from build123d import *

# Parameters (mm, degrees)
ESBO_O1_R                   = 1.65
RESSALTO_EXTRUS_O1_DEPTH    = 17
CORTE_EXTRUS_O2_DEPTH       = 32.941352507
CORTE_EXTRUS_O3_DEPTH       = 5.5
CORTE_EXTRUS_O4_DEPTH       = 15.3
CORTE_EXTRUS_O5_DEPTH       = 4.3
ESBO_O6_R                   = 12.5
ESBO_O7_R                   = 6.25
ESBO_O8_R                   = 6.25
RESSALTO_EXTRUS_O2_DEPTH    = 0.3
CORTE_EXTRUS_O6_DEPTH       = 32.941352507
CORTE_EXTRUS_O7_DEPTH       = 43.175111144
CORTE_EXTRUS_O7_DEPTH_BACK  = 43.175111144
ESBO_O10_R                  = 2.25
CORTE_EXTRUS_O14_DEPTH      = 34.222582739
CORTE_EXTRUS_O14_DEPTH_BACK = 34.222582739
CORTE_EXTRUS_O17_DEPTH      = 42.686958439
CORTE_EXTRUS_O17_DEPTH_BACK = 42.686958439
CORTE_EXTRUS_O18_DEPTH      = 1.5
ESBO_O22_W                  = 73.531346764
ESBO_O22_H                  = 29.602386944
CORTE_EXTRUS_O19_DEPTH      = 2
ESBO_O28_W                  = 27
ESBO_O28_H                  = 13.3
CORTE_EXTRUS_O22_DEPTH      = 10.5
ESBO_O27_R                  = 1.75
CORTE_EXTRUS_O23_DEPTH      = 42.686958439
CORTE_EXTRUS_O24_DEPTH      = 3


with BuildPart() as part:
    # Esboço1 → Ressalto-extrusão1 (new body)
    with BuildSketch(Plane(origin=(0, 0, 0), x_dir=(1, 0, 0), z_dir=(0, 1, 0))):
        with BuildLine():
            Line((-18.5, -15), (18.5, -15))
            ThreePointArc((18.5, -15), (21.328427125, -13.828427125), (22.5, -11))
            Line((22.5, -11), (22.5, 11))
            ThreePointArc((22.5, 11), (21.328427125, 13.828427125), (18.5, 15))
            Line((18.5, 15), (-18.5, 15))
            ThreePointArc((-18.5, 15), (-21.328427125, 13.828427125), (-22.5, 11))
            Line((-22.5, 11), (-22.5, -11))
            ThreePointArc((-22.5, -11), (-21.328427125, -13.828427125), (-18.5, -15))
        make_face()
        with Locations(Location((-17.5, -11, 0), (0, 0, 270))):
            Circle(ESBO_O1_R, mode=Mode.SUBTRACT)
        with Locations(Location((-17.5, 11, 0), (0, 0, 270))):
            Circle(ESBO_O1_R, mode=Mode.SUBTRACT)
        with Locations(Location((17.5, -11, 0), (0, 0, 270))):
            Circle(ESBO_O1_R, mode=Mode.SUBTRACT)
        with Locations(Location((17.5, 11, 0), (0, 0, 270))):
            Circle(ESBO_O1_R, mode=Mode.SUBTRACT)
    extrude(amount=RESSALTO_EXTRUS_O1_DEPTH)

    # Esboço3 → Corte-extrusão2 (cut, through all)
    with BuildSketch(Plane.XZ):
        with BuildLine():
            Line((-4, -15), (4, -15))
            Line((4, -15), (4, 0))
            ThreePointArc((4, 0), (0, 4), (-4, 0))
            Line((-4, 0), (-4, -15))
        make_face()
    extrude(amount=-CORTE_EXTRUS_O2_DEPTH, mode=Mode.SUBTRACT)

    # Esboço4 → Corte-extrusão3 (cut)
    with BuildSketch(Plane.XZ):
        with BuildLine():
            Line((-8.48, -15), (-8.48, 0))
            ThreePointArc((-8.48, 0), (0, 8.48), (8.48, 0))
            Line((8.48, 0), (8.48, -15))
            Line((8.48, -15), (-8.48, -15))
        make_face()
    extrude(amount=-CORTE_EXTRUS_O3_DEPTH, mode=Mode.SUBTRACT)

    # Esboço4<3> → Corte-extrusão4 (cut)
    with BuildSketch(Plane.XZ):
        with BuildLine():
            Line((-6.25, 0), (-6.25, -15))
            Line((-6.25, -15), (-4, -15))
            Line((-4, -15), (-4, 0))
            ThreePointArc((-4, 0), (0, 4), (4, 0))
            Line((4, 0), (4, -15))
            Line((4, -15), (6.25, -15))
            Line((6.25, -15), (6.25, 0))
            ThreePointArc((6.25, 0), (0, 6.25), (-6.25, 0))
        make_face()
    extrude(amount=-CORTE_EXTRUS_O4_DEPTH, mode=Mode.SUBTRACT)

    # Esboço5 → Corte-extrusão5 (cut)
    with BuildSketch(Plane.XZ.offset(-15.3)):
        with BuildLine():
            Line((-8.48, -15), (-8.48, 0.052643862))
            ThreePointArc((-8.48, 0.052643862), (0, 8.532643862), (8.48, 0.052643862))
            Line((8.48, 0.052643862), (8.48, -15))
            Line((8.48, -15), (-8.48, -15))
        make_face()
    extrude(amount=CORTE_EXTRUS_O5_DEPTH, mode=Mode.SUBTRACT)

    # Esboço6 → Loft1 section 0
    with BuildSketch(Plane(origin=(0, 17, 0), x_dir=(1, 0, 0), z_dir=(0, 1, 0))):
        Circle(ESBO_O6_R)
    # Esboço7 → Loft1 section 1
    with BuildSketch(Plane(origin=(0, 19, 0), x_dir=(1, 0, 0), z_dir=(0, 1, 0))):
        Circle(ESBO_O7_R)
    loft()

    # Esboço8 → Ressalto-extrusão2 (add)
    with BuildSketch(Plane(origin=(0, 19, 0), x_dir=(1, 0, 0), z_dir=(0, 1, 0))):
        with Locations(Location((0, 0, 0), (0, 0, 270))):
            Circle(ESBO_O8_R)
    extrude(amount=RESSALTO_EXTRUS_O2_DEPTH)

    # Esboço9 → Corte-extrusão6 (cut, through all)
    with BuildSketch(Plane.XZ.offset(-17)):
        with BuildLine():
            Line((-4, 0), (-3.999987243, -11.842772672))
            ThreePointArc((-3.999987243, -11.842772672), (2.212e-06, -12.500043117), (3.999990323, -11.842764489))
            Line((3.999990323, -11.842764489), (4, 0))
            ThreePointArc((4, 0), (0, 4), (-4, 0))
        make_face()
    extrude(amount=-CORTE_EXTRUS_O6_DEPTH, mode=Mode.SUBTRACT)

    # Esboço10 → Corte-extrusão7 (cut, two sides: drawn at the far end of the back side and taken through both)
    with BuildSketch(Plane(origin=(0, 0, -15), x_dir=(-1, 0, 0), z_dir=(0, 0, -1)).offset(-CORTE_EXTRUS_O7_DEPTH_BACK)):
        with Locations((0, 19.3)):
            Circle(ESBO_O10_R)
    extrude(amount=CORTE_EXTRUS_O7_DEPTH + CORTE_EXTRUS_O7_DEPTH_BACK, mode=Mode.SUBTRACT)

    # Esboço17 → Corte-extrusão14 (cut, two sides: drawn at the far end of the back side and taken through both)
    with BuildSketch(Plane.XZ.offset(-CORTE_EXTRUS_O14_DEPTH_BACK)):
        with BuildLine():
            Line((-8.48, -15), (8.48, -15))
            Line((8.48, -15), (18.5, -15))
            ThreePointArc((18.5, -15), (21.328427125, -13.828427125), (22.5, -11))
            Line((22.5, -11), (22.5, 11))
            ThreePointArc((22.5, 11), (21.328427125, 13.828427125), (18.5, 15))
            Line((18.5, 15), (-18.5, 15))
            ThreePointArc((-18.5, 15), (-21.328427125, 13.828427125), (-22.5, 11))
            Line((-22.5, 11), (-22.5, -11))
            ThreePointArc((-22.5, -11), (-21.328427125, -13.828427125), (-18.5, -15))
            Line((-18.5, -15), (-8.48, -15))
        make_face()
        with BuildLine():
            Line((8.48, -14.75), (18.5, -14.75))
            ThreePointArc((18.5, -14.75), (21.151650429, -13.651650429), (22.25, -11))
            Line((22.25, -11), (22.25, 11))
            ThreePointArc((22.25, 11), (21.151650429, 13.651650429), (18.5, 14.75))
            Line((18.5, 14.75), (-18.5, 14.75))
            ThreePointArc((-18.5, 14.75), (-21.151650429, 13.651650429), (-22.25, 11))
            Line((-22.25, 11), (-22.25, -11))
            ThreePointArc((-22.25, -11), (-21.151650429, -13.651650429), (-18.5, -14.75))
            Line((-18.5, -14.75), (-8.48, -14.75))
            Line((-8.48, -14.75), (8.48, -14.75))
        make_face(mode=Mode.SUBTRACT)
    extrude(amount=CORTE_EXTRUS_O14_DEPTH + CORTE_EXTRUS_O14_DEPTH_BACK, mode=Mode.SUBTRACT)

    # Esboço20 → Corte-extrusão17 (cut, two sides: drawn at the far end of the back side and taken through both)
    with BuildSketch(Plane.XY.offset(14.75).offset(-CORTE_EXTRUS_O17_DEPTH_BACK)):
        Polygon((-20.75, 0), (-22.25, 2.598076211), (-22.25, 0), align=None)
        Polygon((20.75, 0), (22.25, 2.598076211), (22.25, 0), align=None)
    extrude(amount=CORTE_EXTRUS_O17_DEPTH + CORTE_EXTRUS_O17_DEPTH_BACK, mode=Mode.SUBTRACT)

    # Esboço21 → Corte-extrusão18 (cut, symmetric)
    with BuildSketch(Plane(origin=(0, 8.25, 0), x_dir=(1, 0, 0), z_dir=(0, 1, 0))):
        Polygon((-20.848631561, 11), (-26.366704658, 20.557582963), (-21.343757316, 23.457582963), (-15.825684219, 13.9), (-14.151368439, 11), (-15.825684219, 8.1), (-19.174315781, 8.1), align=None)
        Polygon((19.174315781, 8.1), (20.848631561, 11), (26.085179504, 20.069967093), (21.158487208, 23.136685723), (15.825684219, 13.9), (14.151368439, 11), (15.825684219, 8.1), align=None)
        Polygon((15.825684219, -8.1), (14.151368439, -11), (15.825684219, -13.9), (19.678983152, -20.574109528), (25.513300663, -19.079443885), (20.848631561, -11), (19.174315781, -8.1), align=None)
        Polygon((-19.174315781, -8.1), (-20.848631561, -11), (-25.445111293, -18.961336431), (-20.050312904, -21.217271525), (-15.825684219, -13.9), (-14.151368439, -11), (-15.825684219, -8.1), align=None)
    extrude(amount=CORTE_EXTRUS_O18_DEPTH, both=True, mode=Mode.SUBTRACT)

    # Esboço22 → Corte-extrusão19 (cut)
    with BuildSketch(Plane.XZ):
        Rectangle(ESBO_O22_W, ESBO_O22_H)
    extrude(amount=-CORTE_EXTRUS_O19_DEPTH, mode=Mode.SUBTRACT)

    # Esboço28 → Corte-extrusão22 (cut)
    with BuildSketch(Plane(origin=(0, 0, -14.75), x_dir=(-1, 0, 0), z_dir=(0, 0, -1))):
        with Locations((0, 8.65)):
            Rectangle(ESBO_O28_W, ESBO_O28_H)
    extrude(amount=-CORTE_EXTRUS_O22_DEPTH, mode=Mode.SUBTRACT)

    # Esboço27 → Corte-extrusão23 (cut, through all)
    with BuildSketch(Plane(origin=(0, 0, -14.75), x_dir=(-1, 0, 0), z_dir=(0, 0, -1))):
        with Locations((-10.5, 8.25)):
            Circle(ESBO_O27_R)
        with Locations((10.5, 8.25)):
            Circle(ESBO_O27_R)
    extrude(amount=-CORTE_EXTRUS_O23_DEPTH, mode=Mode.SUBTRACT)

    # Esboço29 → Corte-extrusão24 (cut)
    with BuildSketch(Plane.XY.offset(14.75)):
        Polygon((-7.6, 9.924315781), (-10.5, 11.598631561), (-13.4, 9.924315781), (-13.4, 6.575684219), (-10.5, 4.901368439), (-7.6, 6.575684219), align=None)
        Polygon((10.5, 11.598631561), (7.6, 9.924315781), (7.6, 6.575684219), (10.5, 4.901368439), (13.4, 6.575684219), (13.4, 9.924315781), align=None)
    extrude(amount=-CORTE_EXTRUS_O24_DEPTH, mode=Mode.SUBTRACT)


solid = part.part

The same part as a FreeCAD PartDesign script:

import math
import FreeCAD as App
import Part
import Sketcher

V = App.Vector
Q = App.Units.Quantity

doc = App.newDocument("Part")
params = doc.addObject("Spreadsheet::Sheet", "Params")
for row, (alias, value) in enumerate([
    ("sketch1_radius", "4 mm"),
    ("sketch1_diameter", "3.3 mm"),
    ("sketch1_width", "37 mm"),
    ("sketch1_height", "22 mm"),
    ("pad1_length", "17 mm"),
    ("sketch2_radius", "4 mm"),
    ("sketch2_height", "15 mm"),
    ("sketch3_height", "15 mm"),
    ("sketch3_radius", "8.48 mm"),
    ("pocket2_length", "5.5 mm"),
    ("sketch4_radius", "4 mm"),
    ("sketch4_height", "15 mm"),
    ("sketch4_radius2", "6.25 mm"),
    ("pocket3_length", "15.3 mm"),
    ("sketch5_radius", "8.48 mm"),
    ("pocket4_length", "4.3 mm"),
    ("sketch6_diameter", "25 mm"),
    ("sketch7_diameter", "12.5 mm"),
    ("sketch8_diameter", "12.5 mm"),
    ("pad2_length", "0.3 mm"),
    ("sketch9_radius", "4 mm"),
    ("sketch10_diameter", "4.5 mm"),
    ("sketch11_radius", "4 mm"),
    ("sketch11_width", "37 mm"),
    ("sketch11_height", "22 mm"),
    ("sketch11_radius2", "3.75 mm"),
    ("sketch12_length", "3 mm"),
    ("sketch13_length", "5.8 mm"),
    ("pocket9_length", "3 mm"),
    ("pocket10_length", "2 mm"),
    ("sketch15_width", "27 mm"),
    ("sketch15_height", "13.3 mm"),
    ("pocket11_length", "10.5 mm"),
    ("sketch16_diameter", "3.5 mm"),
    ("pocket13_length", "3 mm"),
], start=1):
    params.set(f"A{row}", alias)
    params.set(f"B{row}", "=" + value)
    params.setAlias(f"B{row}", alias)

body = doc.addObject("PartDesign::Body", "Body")

# Sketch on XZ plane
sketch1 = body.newObject("Sketcher::SketchObject", "Sketch")
sketch1.AttachmentSupport = (doc.getObject("XZ_Plane"), [""])
sketch1.MapMode = "FlatFace"
sketch1.addGeometry([
    Part.LineSegment(V(-18.5, 15, 0), V(18.5, 15, 0)),  # 0
    Part.ArcOfCircle(Part.Circle(V(18.5, 11, 0), V(0, 0, 1), 4), math.radians(0), math.radians(90)),  # 1
    Part.LineSegment(V(22.5, 11, 0), V(22.5, -11, 0)),  # 2
    Part.ArcOfCircle(Part.Circle(V(18.5, -11, 0), V(0, 0, 1), 4), math.radians(-90), math.radians(0)),  # 3
    Part.LineSegment(V(18.5, -15, 0), V(-18.5, -15, 0)),  # 4
    Part.ArcOfCircle(Part.Circle(V(-18.5, -11, 0), V(0, 0, 1), 4), math.radians(180), math.radians(270)),  # 5
    Part.LineSegment(V(-22.5, -11, 0), V(-22.5, 11, 0)),  # 6
    Part.ArcOfCircle(Part.Circle(V(-18.5, 11, 0), V(0, 0, 1), 4), math.radians(90), math.radians(180)),  # 7
    Part.Circle(V(-17.5, 11, 0), V(0, 0, 1), 1.6),  # 8
    Part.Circle(V(17.5, 11, 0), V(0, 0, 1), 1.6),  # 9
    Part.Circle(V(-17.5, -11, 0), V(0, 0, 1), 1.6),  # 10
    Part.Circle(V(17.5, -11, 0), V(0, 0, 1), 1.6),  # 11
], False)
sketch1.addConstraint([
    Sketcher.Constraint("Tangent", 0, 2, 1, 2),
    Sketcher.Constraint("Tangent", 1, 1, 2, 1),
    Sketcher.Constraint("Tangent", 2, 2, 3, 2),
    Sketcher.Constraint("Tangent", 3, 1, 4, 1),
    Sketcher.Constraint("Tangent", 4, 2, 5, 2),
    Sketcher.Constraint("Tangent", 5, 1, 6, 1),
    Sketcher.Constraint("Tangent", 6, 2, 7, 2),
    Sketcher.Constraint("Tangent", 7, 1, 0, 1),
    Sketcher.Constraint("Horizontal", 0),
    Sketcher.Constraint("Vertical", 2),
    Sketcher.Constraint("Horizontal", 4),
    Sketcher.Constraint("Vertical", 6),
    Sketcher.Constraint("Equal", 1, 3),
    Sketcher.Constraint("Equal", 3, 5),
    Sketcher.Constraint("Equal", 5, 7),
    Sketcher.Constraint("Equal", 8, 9),
    Sketcher.Constraint("Equal", 9, 10),
    Sketcher.Constraint("Equal", 10, 11),
    Sketcher.Constraint("Symmetric", 1, 3, 5, 3, -1, 1),
    Sketcher.Constraint("Symmetric", 9, 3, 10, 3, -1, 1),
    Sketcher.Constraint("Symmetric", 8, 3, 11, 3, -1, 1),
    Sketcher.Constraint("Symmetric", 8, 3, 9, 3, -2),
    Sketcher.Constraint("Horizontal", 7, 3, 8, 3),
    Sketcher.Constraint("Radius", 1, 4.0),
    Sketcher.Constraint("Diameter", 8, 3.3),
    Sketcher.Constraint("DistanceX", 0, 1, 0, 2, 37.0),
    Sketcher.Constraint("DistanceY", 2, 2, 2, 1, 22.0),
    Sketcher.Constraint("DistanceX", 7, 3, 8, 3, 1.0),
])
sketch1.setExpression("Constraints[23]", "Params.sketch1_radius")
sketch1.setExpression("Constraints[24]", "Params.sketch1_diameter")
sketch1.setExpression("Constraints[25]", "Params.sketch1_width")
sketch1.setExpression("Constraints[26]", "Params.sketch1_height")
pad1 = body.newObject("PartDesign::Pad", "Pad")
pad1.Profile = sketch1
pad1.setExpression("Length", "Params.pad1_length")
pad1.Reversed = True

# Sketch on XZ plane
sketch2 = body.newObject("Sketcher::SketchObject", "Sketch001")
sketch2.AttachmentSupport = (doc.getObject("XZ_Plane"), [""])
sketch2.MapMode = "FlatFace"
sketch2.addGeometry([
    Part.LineSegment(V(-4, -15, 0), V(4, -15, 0)),
    Part.LineSegment(V(4, -15, 0), V(4, 0, 0)),
    Part.ArcOfCircle(Part.Circle(V(0, 0, 0), V(0, 0, 1), 4), math.radians(0), math.radians(180)),
    Part.LineSegment(V(-4, 0, 0), V(-4, -15, 0)),
], False)
sketch2.addConstraint([
    Sketcher.Constraint("Coincident", 0, 2, 1, 1),
    Sketcher.Constraint("Tangent", 1, 2, 2, 1),
    Sketcher.Constraint("Tangent", 2, 2, 3, 1),
    Sketcher.Constraint("Coincident", 3, 2, 0, 1),
    Sketcher.Constraint("Horizontal", 0),
    Sketcher.Constraint("Vertical", 1),
    Sketcher.Constraint("Vertical", 3),
    Sketcher.Constraint("Coincident", 2, 3, -1, 1),
    Sketcher.Constraint("Radius", 2, 4.0),
    Sketcher.Constraint("DistanceY", 1, 1, 1, 2, 15.0),
])
sketch2.setExpression("Constraints[8]", "Params.sketch2_radius")
sketch2.setExpression("Constraints[9]", "Params.sketch2_height")
pocket1 = body.newObject("PartDesign::Pocket", "Pocket")
pocket1.Profile = sketch2
pocket1.Type = "ThroughAll"

# Sketch on XZ plane
sketch3 = body.newObject("Sketcher::SketchObject", "Sketch002")
sketch3.AttachmentSupport = (doc.getObject("XZ_Plane"), [""])
sketch3.MapMode = "FlatFace"
sketch3.addGeometry([
    Part.LineSegment(V(-8, 0, 0), V(-8, -15, 0)),
    Part.LineSegment(V(-8, -15, 0), V(8, -15, 0)),
    Part.LineSegment(V(8, -15, 0), V(8, 0, 0)),
    Part.ArcOfCircle(Part.Circle(V(0, 0, 0), V(0, 0, 1), 8), math.radians(0), math.radians(180)),
], False)
sketch3.addConstraint([
    Sketcher.Constraint("Coincident", 0, 2, 1, 1),
    Sketcher.Constraint("Coincident", 1, 2, 2, 1),
    Sketcher.Constraint("Tangent", 2, 2, 3, 1),
    Sketcher.Constraint("Tangent", 3, 2, 0, 1),
    Sketcher.Constraint("Vertical", 0),
    Sketcher.Constraint("Horizontal", 1),
    Sketcher.Constraint("Vertical", 2),
    Sketcher.Constraint("Coincident", 3, 3, -1, 1),
    Sketcher.Constraint("DistanceY", 0, 2, 0, 1, 15.0),
    Sketcher.Constraint("Radius", 3, 8.48),
])
sketch3.setExpression("Constraints[8]", "Params.sketch3_height")
sketch3.setExpression("Constraints[9]", "Params.sketch3_radius")
pocket2 = body.newObject("PartDesign::Pocket", "Pocket001")
pocket2.Profile = sketch3
pocket2.setExpression("Length", "Params.pocket2_length")

# Sketch on XZ plane
sketch4 = body.newObject("Sketcher::SketchObject", "Sketch003")
sketch4.AttachmentSupport = (doc.getObject("XZ_Plane"), [""])
sketch4.MapMode = "FlatFace"
sketch4.addGeometry([
    Part.LineSegment(V(-6.2, 0, 0), V(-6.2, -15, 0)),  # 0
    Part.LineSegment(V(-6.2, -15, 0), V(-4, -15, 0)),  # 1
    Part.LineSegment(V(-4, -15, 0), V(-4, 0, 0)),  # 2
    Part.ArcOfCircle(Part.Circle(V(0, 0, 0), V(0, 0, 1), 4), math.radians(0), math.radians(180)),  # 3
    Part.LineSegment(V(4, 0, 0), V(4, -15, 0)),  # 4
    Part.LineSegment(V(4, -15, 0), V(6.2, -15, 0)),  # 5
    Part.LineSegment(V(6.2, -15, 0), V(6.2, 0, 0)),  # 6
    Part.ArcOfCircle(Part.Circle(V(0, 0, 0), V(0, 0, 1), 6.2), math.radians(0), math.radians(180)),  # 7
], False)
sketch4.addConstraint([
    Sketcher.Constraint("Coincident", 0, 2, 1, 1),
    Sketcher.Constraint("Coincident", 1, 2, 2, 1),
    Sketcher.Constraint("Tangent", 2, 2, 3, 2),
    Sketcher.Constraint("Tangent", 3, 1, 4, 1),
    Sketcher.Constraint("Coincident", 4, 2, 5, 1),
    Sketcher.Constraint("Coincident", 5, 2, 6, 1),
    Sketcher.Constraint("Tangent", 6, 2, 7, 1),
    Sketcher.Constraint("Tangent", 7, 2, 0, 1),
    Sketcher.Constraint("Vertical", 0),
    Sketcher.Constraint("Horizontal", 1),
    Sketcher.Constraint("Vertical", 2),
    Sketcher.Constraint("Vertical", 4),
    Sketcher.Constraint("Horizontal", 5),
    Sketcher.Constraint("Vertical", 6),
    Sketcher.Constraint("Coincident", 3, 3, -1, 1),
    Sketcher.Constraint("Coincident", 7, 3, -1, 1),
    Sketcher.Constraint("Horizontal", 1, 2, 4, 2),
    Sketcher.Constraint("Radius", 3, 4.0),
    Sketcher.Constraint("DistanceY", 0, 2, 0, 1, 15.0),
    Sketcher.Constraint("Radius", 7, 6.25),
])
sketch4.setExpression("Constraints[17]", "Params.sketch4_radius")
sketch4.setExpression("Constraints[18]", "Params.sketch4_height")
sketch4.setExpression("Constraints[19]", "Params.sketch4_radius2")
pocket3 = body.newObject("PartDesign::Pocket", "Pocket002")
pocket3.Profile = sketch4
pocket3.setExpression("Length", "Params.pocket3_length")

# Sketch on XZ plane
sketch5 = body.newObject("Sketcher::SketchObject", "Sketch004")
sketch5.AttachmentSupport = (doc.getObject("XZ_Plane"), [""])
sketch5.MapMode = "FlatFace"
sketch5.AttachmentOffset = App.Placement(V(0, 0, -15.3), App.Rotation())
sketch5.addGeometry([
    Part.LineSegment(V(-8, 0, 0), V(-8, -15, 0)),
    Part.LineSegment(V(-8, -15, 0), V(8, -15, 0)),
    Part.LineSegment(V(8, -15, 0), V(8, 0, 0)),
    Part.ArcOfCircle(Part.Circle(V(0, 0, 0), V(0, 0, 1), 8), math.radians(0), math.radians(180)),
], False)
sketch5.addConstraint([
    Sketcher.Constraint("Coincident", 0, 2, 1, 1),
    Sketcher.Constraint("Coincident", 1, 2, 2, 1),
    Sketcher.Constraint("Tangent", 2, 2, 3, 1),
    Sketcher.Constraint("Tangent", 3, 2, 0, 1),
    Sketcher.Constraint("Vertical", 0),
    Sketcher.Constraint("Horizontal", 1),
    Sketcher.Constraint("Vertical", 2),
    Sketcher.Constraint("PointOnObject", 3, 3, -2),
    Sketcher.Constraint("Radius", 3, 8.48),
    Sketcher.Constraint("DistanceY", 0, 2, -1, 1, 15.0),
    Sketcher.Constraint("DistanceY", 0, 2, 0, 1, 15.052644),
])
sketch5.setExpression("Constraints[8]", "Params.sketch5_radius")
pocket4 = body.newObject("PartDesign::Pocket", "Pocket003")
pocket4.Profile = sketch5
pocket4.setExpression("Length", "Params.pocket4_length")
pocket4.Reversed = True

# Sketch on XZ plane
sketch6 = body.newObject("Sketcher::SketchObject", "Sketch005")
sketch6.AttachmentSupport = (doc.getObject("XZ_Plane"), [""])
sketch6.MapMode = "FlatFace"
sketch6.AttachmentOffset = App.Placement(V(0, 0, -17), App.Rotation())
sketch6.addGeometry(Part.Circle(V(0, 0, 0), V(0, 0, 1), 12), False)
sketch6.addConstraint([
    Sketcher.Constraint("Coincident", 0, 3, -1, 1),
    Sketcher.Constraint("Diameter", 0, 25.0),
])
sketch6.setExpression("Constraints[1]", "Params.sketch6_diameter")

# Sketch on XZ plane
sketch7 = body.newObject("Sketcher::SketchObject", "Sketch006")
sketch7.AttachmentSupport = (doc.getObject("XZ_Plane"), [""])
sketch7.MapMode = "FlatFace"
sketch7.AttachmentOffset = App.Placement(V(0, 0, -19), App.Rotation())
sketch7.addGeometry(Part.Circle(V(0, 0, 0), V(0, 0, 1), 6), False)
sketch7.addConstraint([
    Sketcher.Constraint("Coincident", 0, 3, -1, 1),
    Sketcher.Constraint("Diameter", 0, 12.5),
])
sketch7.setExpression("Constraints[1]", "Params.sketch7_diameter")

additiveloft = body.newObject("PartDesign::AdditiveLoft", "AdditiveLoft")
additiveloft.Profile = sketch6
additiveloft.Sections = [sketch7]

# Sketch on XZ plane
sketch8 = body.newObject("Sketcher::SketchObject", "Sketch007")
sketch8.AttachmentSupport = (doc.getObject("XZ_Plane"), [""])
sketch8.MapMode = "FlatFace"
sketch8.AttachmentOffset = App.Placement(V(0, 0, -19), App.Rotation())
sketch8.addGeometry(Part.Circle(V(0, 0, 0), V(0, 0, 1), 6), False)
sketch8.addConstraint([
    Sketcher.Constraint("Coincident", 0, 3, -1, 1),
    Sketcher.Constraint("Diameter", 0, 12.5),
])
sketch8.setExpression("Constraints[1]", "Params.sketch8_diameter")
pad2 = body.newObject("PartDesign::Pad", "Pad001")
pad2.Profile = sketch8
pad2.setExpression("Length", "Params.pad2_length")
pad2.Reversed = True

# Sketch on XZ plane
sketch9 = body.newObject("Sketcher::SketchObject", "Sketch008")
sketch9.AttachmentSupport = (doc.getObject("XZ_Plane"), [""])
sketch9.MapMode = "FlatFace"
sketch9.AttachmentOffset = App.Placement(V(0, 0, -17), App.Rotation())
sketch9.addGeometry([
    Part.LineSegment(V(-4, 0, 0), V(-4, -11.8, 0)),
    Part.ArcOfCircle(Part.Circle(V(0, 0, 0), V(0, 0, 1), 12.5), math.radians(-109), math.radians(-71)),
    Part.LineSegment(V(4, -11.8, 0), V(4, 0, 0)),
    Part.ArcOfCircle(Part.Circle(V(0, 0, 0), V(0, 0, 1), 4), math.radians(0), math.radians(180)),
], False)
sketch9.addConstraint([
    Sketcher.Constraint("Coincident", 0, 2, 1, 1),
    Sketcher.Constraint("Coincident", 1, 2, 2, 1),
    Sketcher.Constraint("Tangent", 2, 2, 3, 1),
    Sketcher.Constraint("Tangent", 3, 2, 0, 1),
    Sketcher.Constraint("Coincident", 3, 3, -1, 1),
    Sketcher.Constraint("Symmetric", 0, 2, 1, 2, -2),
    Sketcher.Constraint("PointOnObject", 1, 3, -1),
    Sketcher.Constraint("PointOnObject", 2, 2, -1),
    Sketcher.Constraint("Radius", 3, 4.0),
    Sketcher.Constraint("Radius", 1, 12.500043),
])
sketch9.setExpression("Constraints[8]", "Params.sketch9_radius")
pocket5 = body.newObject("PartDesign::Pocket", "Pocket004")
pocket5.Profile = sketch9
pocket5.Type = "ThroughAll"

# Sketch on XY plane
sketch10 = body.newObject("Sketcher::SketchObject", "Sketch009")
sketch10.AttachmentSupport = (doc.getObject("XY_Plane"), [""])
sketch10.MapMode = "FlatFace"
sketch10.AttachmentOffset = App.Placement(V(0, 0, -15), App.Rotation())
sketch10.addGeometry(Part.Circle(V(0, 19.3, 0), V(0, 0, 1), 2.2), False)
sketch10.addConstraint([
    Sketcher.Constraint("PointOnObject", 0, 3, -2),
    Sketcher.Constraint("Diameter", 0, 4.5),
    Sketcher.Constraint("DistanceY", -1, 1, 0, 3, 19.3),
])
sketch10.setExpression("Constraints[1]", "Params.sketch10_diameter")
pocket6 = body.newObject("PartDesign::Pocket", "Pocket005")
pocket6.Profile = sketch10
pocket6.Type = "ThroughAll"
pocket6.Midplane = True

# Sketch on XZ plane
sketch11 = body.newObject("Sketcher::SketchObject", "Sketch010")
sketch11.AttachmentSupport = (doc.getObject("XZ_Plane"), [""])
sketch11.MapMode = "FlatFace"
sketch11.addGeometry([
    Part.ArcOfCircle(Part.Circle(V(18.5, -11, 0), V(0, 0, 1), 4), math.radians(-90), math.radians(0)),  # 0
    Part.LineSegment(V(22.5, -11, 0), V(22.5, 11, 0)),  # 1
    Part.ArcOfCircle(Part.Circle(V(18.5, 11, 0), V(0, 0, 1), 4), math.radians(0), math.radians(90)),  # 2
    Part.LineSegment(V(18.5, 15, 0), V(-18.5, 15, 0)),  # 3
    Part.ArcOfCircle(Part.Circle(V(-18.5, 11, 0), V(0, 0, 1), 4), math.radians(90), math.radians(180)),  # 4
    Part.LineSegment(V(-22.5, 11, 0), V(-22.5, -11, 0)),  # 5
    Part.ArcOfCircle(Part.Circle(V(-18.5, -11, 0), V(0, 0, 1), 4), math.radians(180), math.radians(270)),  # 6
    Part.LineSegment(V(-18.5, -15, 0), V(18.5, -15, 0)),  # 7
    Part.ArcOfCircle(Part.Circle(V(18.5, -11, 0), V(0, 0, 1), 3.8), math.radians(-90), math.radians(0)),  # 8
    Part.LineSegment(V(18.5, -14.8, 0), V(-18.5, -14.8, 0)),  # 9
    Part.ArcOfCircle(Part.Circle(V(-18.5, -11, 0), V(0, 0, 1), 3.8), math.radians(-180), math.radians(-90)),  # 10
    Part.LineSegment(V(-22.2, -11, 0), V(-22.2, 11, 0)),  # 11
    Part.ArcOfCircle(Part.Circle(V(-18.5, 11, 0), V(0, 0, 1), 3.8), math.radians(90), math.radians(180)),  # 12
    Part.LineSegment(V(-18.5, 14.8, 0), V(18.5, 14.8, 0)),  # 13
    Part.ArcOfCircle(Part.Circle(V(18.5, 11, 0), V(0, 0, 1), 3.8), math.radians(0), math.radians(90)),  # 14
    Part.LineSegment(V(22.2, 11, 0), V(22.2, -11, 0)),  # 15
], False)
sketch11.addConstraint([
    Sketcher.Constraint("Tangent", 0, 2, 1, 1),
    Sketcher.Constraint("Tangent", 1, 2, 2, 1),
    Sketcher.Constraint("Tangent", 2, 2, 3, 1),
    Sketcher.Constraint("Tangent", 3, 2, 4, 1),
    Sketcher.Constraint("Tangent", 4, 2, 5, 1),
    Sketcher.Constraint("Tangent", 5, 2, 6, 1),
    Sketcher.Constraint("Tangent", 6, 2, 7, 1),
    Sketcher.Constraint("Tangent", 7, 2, 0, 1),
    Sketcher.Constraint("Tangent", 8, 1, 9, 1),
    Sketcher.Constraint("Tangent", 9, 2, 10, 2),
    Sketcher.Constraint("Tangent", 10, 1, 11, 1),
    Sketcher.Constraint("Tangent", 11, 2, 12, 2),
    Sketcher.Constraint("Tangent", 12, 1, 13, 1),
    Sketcher.Constraint("Tangent", 13, 2, 14, 2),
    Sketcher.Constraint("Tangent", 14, 1, 15, 1),
    Sketcher.Constraint("Tangent", 15, 2, 8, 2),
    Sketcher.Constraint("Vertical", 1),
    Sketcher.Constraint("Horizontal", 3),
    Sketcher.Constraint("Vertical", 5),
    Sketcher.Constraint("Horizontal", 7),
    Sketcher.Constraint("Horizontal", 9),
    Sketcher.Constraint("Vertical", 11),
    Sketcher.Constraint("Horizontal", 13),
    Sketcher.Constraint("Vertical", 15),
    Sketcher.Constraint("Coincident", 8, 3, 0, 3),
    Sketcher.Constraint("Coincident", 10, 3, 6, 3),
    Sketcher.Constraint("Coincident", 12, 3, 4, 3),
    Sketcher.Constraint("Equal", 0, 2),
    Sketcher.Constraint("Equal", 2, 4),
    Sketcher.Constraint("Equal", 4, 6),
    Sketcher.Constraint("Equal", 12, 14),
    Sketcher.Constraint("Symmetric", 0, 3, 4, 3, -1, 1),
    Sketcher.Constraint("Radius", 0, 4.0),
    Sketcher.Constraint("DistanceX", 3, 2, 3, 1, 37.0),
    Sketcher.Constraint("DistanceY", 1, 1, 1, 2, 22.0),
    Sketcher.Constraint("Radius", 8, 3.75),
])
sketch11.setExpression("Constraints[32]", "Params.sketch11_radius")
sketch11.setExpression("Constraints[33]", "Params.sketch11_width")
sketch11.setExpression("Constraints[34]", "Params.sketch11_height")
sketch11.setExpression("Constraints[35]", "Params.sketch11_radius2")
pocket7 = body.newObject("PartDesign::Pocket", "Pocket006")
pocket7.Profile = sketch11
pocket7.Type = "ThroughAll"
pocket7.Midplane = True

# Sketch on XY plane
sketch12 = body.newObject("Sketcher::SketchObject", "Sketch011")
sketch12.AttachmentSupport = (doc.getObject("XY_Plane"), [""])
sketch12.MapMode = "FlatFace"
sketch12.AttachmentOffset = App.Placement(V(0, 0, 14.75), App.Rotation())
sketch12.addGeometry([
    Part.LineSegment(V(-20.8, 0, 0), V(-22.2, 2.6, 0)),  # 0
    Part.LineSegment(V(-22.2, 2.6, 0), V(-22.2, 0, 0)),  # 1
    Part.LineSegment(V(-22.2, 0, 0), V(-20.8, 0, 0)),  # 2
    Part.LineSegment(V(22.2, 2.6, 0), V(20.8, 0, 0)),  # 3
    Part.LineSegment(V(20.8, 0, 0), V(22.2, 0, 0)),  # 4
    Part.LineSegment(V(22.2, 0, 0), V(22.2, 2.6, 0)),  # 5
], False)
sketch12.addConstraint([
    Sketcher.Constraint("Coincident", 0, 2, 1, 1),
    Sketcher.Constraint("Coincident", 1, 2, 2, 1),
    Sketcher.Constraint("Coincident", 2, 2, 0, 1),
    Sketcher.Constraint("Coincident", 3, 2, 4, 1),
    Sketcher.Constraint("Coincident", 4, 2, 5, 1),
    Sketcher.Constraint("Coincident", 5, 2, 3, 1),
    Sketcher.Constraint("Vertical", 1),
    Sketcher.Constraint("Horizontal", 2),
    Sketcher.Constraint("Horizontal", 4),
    Sketcher.Constraint("Vertical", 5),
    Sketcher.Constraint("Symmetric", 2, 2, 3, 2, -1, 1),
    Sketcher.Constraint("Symmetric", 1, 2, 4, 2, -2),
    Sketcher.Constraint("Horizontal", 0, 2, 5, 2),
    Sketcher.Constraint("Angle", 0, Q("120 deg")),
    Sketcher.Constraint("Distance", 0, 3.0),
    Sketcher.Constraint("DistanceX", 1, 2, 3, 2, 43.0),
])
sketch12.setExpression("Constraints[14]", "Params.sketch12_length")
pocket8 = body.newObject("PartDesign::Pocket", "Pocket007")
pocket8.Profile = sketch12
pocket8.Type = "ThroughAll"
pocket8.Midplane = True

# Sketch on XZ plane
sketch13 = body.newObject("Sketcher::SketchObject", "Sketch012")
sketch13.AttachmentSupport = (doc.getObject("XZ_Plane"), [""])
sketch13.MapMode = "FlatFace"
sketch13.AttachmentOffset = App.Placement(V(0, 0, -8.25), App.Rotation())
sketch13.addGeometry([
    Part.LineSegment(V(-26.4, -20.6, 0), V(-20.8, -11, 0)),  # 0
    Part.LineSegment(V(-20.8, -11, 0), V(-19.2, -8.1, 0)),  # 1
    Part.LineSegment(V(-19.2, -8.1, 0), V(-15.8, -8.1, 0)),  # 2
    Part.LineSegment(V(-15.8, -8.1, 0), V(-14.2, -11, 0)),  # 3
    Part.LineSegment(V(-14.2, -11, 0), V(-15.8, -13.9, 0)),  # 4
    Part.LineSegment(V(-15.8, -13.9, 0), V(-21.3, -23.5, 0)),  # 5
    Part.LineSegment(V(-21.3, -23.5, 0), V(-26.4, -20.6, 0)),  # 6
    Part.LineSegment(V(19.2, -8.1, 0), V(20.8, -11, 0)),  # 7
    Part.LineSegment(V(20.8, -11, 0), V(26.1, -20.1, 0)),  # 8
    Part.LineSegment(V(26.1, -20.1, 0), V(21.2, -23.1, 0)),  # 9
    Part.LineSegment(V(21.2, -23.1, 0), V(15.8, -13.9, 0)),  # 10
    Part.LineSegment(V(15.8, -13.9, 0), V(14.2, -11, 0)),  # 11
    Part.LineSegment(V(14.2, -11, 0), V(15.8, -8.1, 0)),  # 12
    Part.LineSegment(V(15.8, -8.1, 0), V(19.2, -8.1, 0)),  # 13
    Part.LineSegment(V(15.8, 8.1, 0), V(14.2, 11, 0)),  # 14
    Part.LineSegment(V(14.2, 11, 0), V(15.8, 13.9, 0)),  # 15
    Part.LineSegment(V(15.8, 13.9, 0), V(19.7, 20.6, 0)),  # 16
    Part.LineSegment(V(19.7, 20.6, 0), V(25.5, 19.1, 0)),  # 17
    Part.LineSegment(V(25.5, 19.1, 0), V(20.8, 11, 0)),  # 18
    Part.LineSegment(V(20.8, 11, 0), V(19.2, 8.1, 0)),  # 19
    Part.LineSegment(V(19.2, 8.1, 0), V(15.8, 8.1, 0)),  # 20
    Part.LineSegment(V(-19.2, 8.1, 0), V(-20.8, 11, 0)),  # 21
    Part.LineSegment(V(-20.8, 11, 0), V(-25.4, 19, 0)),  # 22
    Part.LineSegment(V(-25.4, 19, 0), V(-20.1, 21.2, 0)),  # 23
    Part.LineSegment(V(-20.1, 21.2, 0), V(-15.8, 13.9, 0)),  # 24
    Part.LineSegment(V(-15.8, 13.9, 0), V(-14.2, 11, 0)),  # 25
    Part.LineSegment(V(-14.2, 11, 0), V(-15.8, 8.1, 0)),  # 26
    Part.LineSegment(V(-15.8, 8.1, 0), V(-19.2, 8.1, 0)),  # 27
], False)
sketch13.addConstraint([
    Sketcher.Constraint("Coincident", 0, 2, 1, 1),
    Sketcher.Constraint("Coincident", 1, 2, 2, 1),
    Sketcher.Constraint("Coincident", 2, 2, 3, 1),
    Sketcher.Constraint("Coincident", 3, 2, 4, 1),
    Sketcher.Constraint("Coincident", 4, 2, 5, 1),
    Sketcher.Constraint("Coincident", 5, 2, 6, 1),
    Sketcher.Constraint("Coincident", 6, 2, 0, 1),
    Sketcher.Constraint("Coincident", 7, 2, 8, 1),
    Sketcher.Constraint("Coincident", 8, 2, 9, 1),
    Sketcher.Constraint("Coincident", 9, 2, 10, 1),
    Sketcher.Constraint("Coincident", 10, 2, 11, 1),
    Sketcher.Constraint("Coincident", 11, 2, 12, 1),
    Sketcher.Constraint("Coincident", 12, 2, 13, 1),
    Sketcher.Constraint("Coincident", 13, 2, 7, 1),
    Sketcher.Constraint("Coincident", 14, 2, 15, 1),
    Sketcher.Constraint("Coincident", 15, 2, 16, 1),
    Sketcher.Constraint("Coincident", 16, 2, 17, 1),
    Sketcher.Constraint("Coincident", 17, 2, 18, 1),
    Sketcher.Constraint("Coincident", 18, 2, 19, 1),
    Sketcher.Constraint("Coincident", 19, 2, 20, 1),
    Sketcher.Constraint("Coincident", 20, 2, 14, 1),
    Sketcher.Constraint("Coincident", 21, 2, 22, 1),
    Sketcher.Constraint("Coincident", 22, 2, 23, 1),
    Sketcher.Constraint("Coincident", 23, 2, 24, 1),
    Sketcher.Constraint("Coincident", 24, 2, 25, 1),
    Sketcher.Constraint("Coincident", 25, 2, 26, 1),
    Sketcher.Constraint("Coincident", 26, 2, 27, 1),
    Sketcher.Constraint("Coincident", 27, 2, 21, 1),
    Sketcher.Constraint("Horizontal", 2),
    Sketcher.Constraint("Horizontal", 13),
    Sketcher.Constraint("Horizontal", 20),
    Sketcher.Constraint("Horizontal", 27),
    Sketcher.Constraint("Symmetric", 3, 2, 14, 2, -1, 1),
    Sketcher.Constraint("Symmetric", 4, 2, 15, 2, -1, 1),
    Sketcher.Constraint("Symmetric", 0, 2, 18, 2, -1, 1),
    Sketcher.Constraint("Symmetric", 1, 2, 19, 2, -1, 1),
    Sketcher.Constraint("Symmetric", 7, 2, 21, 2, -1, 1),
    Sketcher.Constraint("Symmetric", 10, 2, 24, 2, -1, 1),
    Sketcher.Constraint("Symmetric", 11, 2, 25, 2, -1, 1),
    Sketcher.Constraint("Symmetric", 12, 2, 26, 2, -1, 1),
    Sketcher.Constraint("Symmetric", 0, 2, 7, 2, -2),
    Sketcher.Constraint("Symmetric", 4, 2, 10, 2, -2),
    Sketcher.Constraint("Symmetric", 3, 2, 11, 2, -2),
    Sketcher.Constraint("Symmetric", 2, 2, 12, 2, -2),
    Sketcher.Constraint("Parallel", 0, 1),
    Sketcher.Constraint("Parallel", 1, 4),
    Sketcher.Constraint("Parallel", 4, 5),
    Sketcher.Constraint("Perpendicular", 5, 6),
    Sketcher.Constraint("Parallel", 3, 7),
    Sketcher.Constraint("Parallel", 7, 8),
    Sketcher.Constraint("Parallel", 8, 10),
    Sketcher.Constraint("Parallel", 10, 11),
    Sketcher.Constraint("Parallel", 11, 14),
    Sketcher.Constraint("Parallel", 15, 16),
    Sketcher.Constraint("Parallel", 16, 18),
    Sketcher.Constraint("Parallel", 14, 21),
    Sketcher.Constraint("Parallel", 21, 22),
    Sketcher.Constraint("Parallel", 22, 24),
    Sketcher.Constraint("Horizontal", 0, 2, 3, 2),
    Sketcher.Constraint("Vertical", 2, 2, 4, 2),
    Sketcher.Constraint("Equal", 0, 5),
    Sketcher.Constraint("Angle", 0, Q("60 deg")),
    Sketcher.Constraint("DistanceY", 0, 2, -1, 1, 11.0),
    Sketcher.Constraint("DistanceX", 3, 2, 7, 2, 35.0),
    Sketcher.Constraint("Distance", 6, 5.8),
    Sketcher.Constraint("DistanceX", -1, 1, 17, 2, 25.513301),
    Sketcher.Constraint("DistanceX", 15, 2, 16, 2, 3.853299),
    Sketcher.Constraint("DistanceX", 22, 2, 23, 2, 5.394798),
    Sketcher.Constraint("Distance", 22, 9.192959),
    Sketcher.Constraint("DistanceX", -1, 1, 8, 2, 26.08518),
    Sketcher.Constraint("DistanceX", 5, 2, 3, 2, 7.192389),
    Sketcher.Constraint("DistanceY", 9, 2, 8, 2, 3.066719),
])
sketch13.setExpression("Constraints[64]", "Params.sketch13_length")
pocket9 = body.newObject("PartDesign::Pocket", "Pocket008")
pocket9.Profile = sketch13
pocket9.setExpression("Length", "Params.pocket9_length")
pocket9.Midplane = True

# Sketch on XZ plane
sketch14 = body.newObject("Sketcher::SketchObject", "Sketch013")
sketch14.AttachmentSupport = (doc.getObject("XZ_Plane"), [""])
sketch14.MapMode = "FlatFace"
sketch14.addGeometry([
    Part.LineSegment(V(-37, 15, 0), V(-37, -15, 0)),
    Part.LineSegment(V(-37, -15, 0), V(37, -15, 0)),
    Part.LineSegment(V(37, -15, 0), V(37, 15, 0)),
    Part.LineSegment(V(37, 15, 0), V(-37, 15, 0)),
], False)
sketch14.addConstraint([
    Sketcher.Constraint("Coincident", 0, 2, 1, 1),
    Sketcher.Constraint("Coincident", 1, 2, 2, 1),
    Sketcher.Constraint("Coincident", 2, 2, 3, 1),
    Sketcher.Constraint("Coincident", 3, 2, 0, 1),
    Sketcher.Constraint("Vertical", 0),
    Sketcher.Constraint("Horizontal", 1),
    Sketcher.Constraint("Vertical", 2),
    Sketcher.Constraint("Horizontal", 3),
    Sketcher.Constraint("Symmetric", 0, 2, 2, 2, -1, 1),
    Sketcher.Constraint("DistanceX", 1, 1, 1, 2, 73.531347),
    Sketcher.Constraint("DistanceY", 0, 2, 0, 1, 29.602387),
])
pocket10 = body.newObject("PartDesign::Pocket", "Pocket009")
pocket10.Profile = sketch14
pocket10.setExpression("Length", "Params.pocket10_length")

# Sketch on XY plane
sketch15 = body.newObject("Sketcher::SketchObject", "Sketch014")
sketch15.AttachmentSupport = (doc.getObject("XY_Plane"), [""])
sketch15.MapMode = "FlatFace"
sketch15.AttachmentOffset = App.Placement(V(0, 0, -14.75), App.Rotation())
sketch15.addGeometry([
    Part.LineSegment(V(14, 15, 0), V(14, 2, 0)),
    Part.LineSegment(V(14, 2, 0), V(-14, 2, 0)),
    Part.LineSegment(V(-14, 2, 0), V(-14, 15, 0)),
    Part.LineSegment(V(-14, 15, 0), V(14, 15, 0)),
], False)
sketch15.addConstraint([
    Sketcher.Constraint("Coincident", 0, 2, 1, 1),
    Sketcher.Constraint("Coincident", 1, 2, 2, 1),
    Sketcher.Constraint("Coincident", 2, 2, 3, 1),
    Sketcher.Constraint("Coincident", 3, 2, 0, 1),
    Sketcher.Constraint("Vertical", 0),
    Sketcher.Constraint("Horizontal", 1),
    Sketcher.Constraint("Vertical", 2),
    Sketcher.Constraint("Horizontal", 3),
    Sketcher.Constraint("DistanceX", 1, 2, 1, 1, 27.0),
    Sketcher.Constraint("DistanceY", 0, 2, 0, 1, 13.3),
    Sketcher.Constraint("DistanceY", -1, 1, 0, 2, 2.0),
    Sketcher.Constraint("DistanceX", -1, 1, 0, 2, 13.5),
])
sketch15.setExpression("Constraints[8]", "Params.sketch15_width")
sketch15.setExpression("Constraints[9]", "Params.sketch15_height")
pocket11 = body.newObject("PartDesign::Pocket", "Pocket010")
pocket11.Profile = sketch15
pocket11.setExpression("Length", "Params.pocket11_length")
pocket11.Reversed = True

# Sketch on XY plane
sketch16 = body.newObject("Sketcher::SketchObject", "Sketch015")
sketch16.AttachmentSupport = (doc.getObject("XY_Plane"), [""])
sketch16.MapMode = "FlatFace"
sketch16.AttachmentOffset = App.Placement(V(0, 0, -14.75), App.Rotation())
sketch16.addGeometry([
    Part.Circle(V(10.5, 8.2, 0), V(0, 0, 1), 1.8),
    Part.Circle(V(-10.5, 8.2, 0), V(0, 0, 1), 1.8),
], False)
sketch16.addConstraint([
    Sketcher.Constraint("Equal", 0, 1),
    Sketcher.Constraint("Symmetric", 0, 3, 1, 3, -2),
    Sketcher.Constraint("Diameter", 0, 3.5),
    Sketcher.Constraint("DistanceX", 1, 3, 0, 3, 21.0),
    Sketcher.Constraint("DistanceY", -1, 1, 0, 3, 8.25),
])
sketch16.setExpression("Constraints[2]", "Params.sketch16_diameter")
pocket12 = body.newObject("PartDesign::Pocket", "Pocket011")
pocket12.Profile = sketch16
pocket12.Type = "ThroughAll"
pocket12.Reversed = True

# Sketch on XY plane
sketch17 = body.newObject("Sketcher::SketchObject", "Sketch016")
sketch17.AttachmentSupport = (doc.getObject("XY_Plane"), [""])
sketch17.MapMode = "FlatFace"
sketch17.AttachmentOffset = App.Placement(V(0, 0, 14.75), App.Rotation())
sketch17.addGeometry([
    Part.LineSegment(V(-7.6, 9.9, 0), V(-10.5, 11.6, 0)),  # 0
    Part.LineSegment(V(-10.5, 11.6, 0), V(-13.4, 9.9, 0)),  # 1
    Part.LineSegment(V(-13.4, 9.9, 0), V(-13.4, 6.6, 0)),  # 2
    Part.LineSegment(V(-13.4, 6.6, 0), V(-10.5, 4.9, 0)),  # 3
    Part.LineSegment(V(-10.5, 4.9, 0), V(-7.6, 6.6, 0)),  # 4
    Part.LineSegment(V(-7.6, 6.6, 0), V(-7.6, 9.9, 0)),  # 5
    Part.LineSegment(V(10.5, 11.6, 0), V(7.6, 9.9, 0)),  # 6
    Part.LineSegment(V(7.6, 9.9, 0), V(7.6, 6.6, 0)),  # 7
    Part.LineSegment(V(7.6, 6.6, 0), V(10.5, 4.9, 0)),  # 8
    Part.LineSegment(V(10.5, 4.9, 0), V(13.4, 6.6, 0)),  # 9
    Part.LineSegment(V(13.4, 6.6, 0), V(13.4, 9.9, 0)),  # 10
    Part.LineSegment(V(13.4, 9.9, 0), V(10.5, 11.6, 0)),  # 11
], False)
sketch17.addConstraint([
    Sketcher.Constraint("Coincident", 0, 2, 1, 1),
    Sketcher.Constraint("Coincident", 1, 2, 2, 1),
    Sketcher.Constraint("Coincident", 2, 2, 3, 1),
    Sketcher.Constraint("Coincident", 3, 2, 4, 1),
    Sketcher.Constraint("Coincident", 4, 2, 5, 1),
    Sketcher.Constraint("Coincident", 5, 2, 0, 1),
    Sketcher.Constraint("Coincident", 6, 2, 7, 1),
    Sketcher.Constraint("Coincident", 7, 2, 8, 1),
    Sketcher.Constraint("Coincident", 8, 2, 9, 1),
    Sketcher.Constraint("Coincident", 9, 2, 10, 1),
    Sketcher.Constraint("Coincident", 10, 2, 11, 1),
    Sketcher.Constraint("Coincident", 11, 2, 6, 1),
    Sketcher.Constraint("Vertical", 2),
    Sketcher.Constraint("Vertical", 5),
    Sketcher.Constraint("Vertical", 7),
    Sketcher.Constraint("Vertical", 10),
    Sketcher.Constraint("Symmetric", 5, 2, 6, 2, -2),
    Sketcher.Constraint("Symmetric", 3, 2, 8, 2, -2),
    Sketcher.Constraint("Symmetric", 2, 2, 9, 2, -2),
    Sketcher.Constraint("Symmetric", 0, 2, 11, 2, -2),
    Sketcher.Constraint("Parallel", 0, 3),
    Sketcher.Constraint("Parallel", 1, 4),
    Sketcher.Constraint("Parallel", 4, 6),
    Sketcher.Constraint("Parallel", 3, 8),
    Sketcher.Constraint("Parallel", 8, 11),
    Sketcher.Constraint("Horizontal", 2, 2, 4, 2),
    Sketcher.Constraint("Horizontal", 1, 2, 5, 2),
    Sketcher.Constraint("Angle", 0, Q("150 deg")),
    Sketcher.Constraint("DistanceX", 1, 2, 6, 2, 21.0),
    Sketcher.Constraint("DistanceX", 1, 2, -1, 1, 13.4),
    Sketcher.Constraint("DistanceY", 2, 2, 2, 1, 3.348632),
    Sketcher.Constraint("DistanceY", -1, 1, 0, 2, 11.598632),
])
pocket13 = body.newObject("PartDesign::Pocket", "Pocket012")
pocket13.Profile = sketch17
pocket13.setExpression("Length", "Params.pocket13_length")

doc.recompute()
